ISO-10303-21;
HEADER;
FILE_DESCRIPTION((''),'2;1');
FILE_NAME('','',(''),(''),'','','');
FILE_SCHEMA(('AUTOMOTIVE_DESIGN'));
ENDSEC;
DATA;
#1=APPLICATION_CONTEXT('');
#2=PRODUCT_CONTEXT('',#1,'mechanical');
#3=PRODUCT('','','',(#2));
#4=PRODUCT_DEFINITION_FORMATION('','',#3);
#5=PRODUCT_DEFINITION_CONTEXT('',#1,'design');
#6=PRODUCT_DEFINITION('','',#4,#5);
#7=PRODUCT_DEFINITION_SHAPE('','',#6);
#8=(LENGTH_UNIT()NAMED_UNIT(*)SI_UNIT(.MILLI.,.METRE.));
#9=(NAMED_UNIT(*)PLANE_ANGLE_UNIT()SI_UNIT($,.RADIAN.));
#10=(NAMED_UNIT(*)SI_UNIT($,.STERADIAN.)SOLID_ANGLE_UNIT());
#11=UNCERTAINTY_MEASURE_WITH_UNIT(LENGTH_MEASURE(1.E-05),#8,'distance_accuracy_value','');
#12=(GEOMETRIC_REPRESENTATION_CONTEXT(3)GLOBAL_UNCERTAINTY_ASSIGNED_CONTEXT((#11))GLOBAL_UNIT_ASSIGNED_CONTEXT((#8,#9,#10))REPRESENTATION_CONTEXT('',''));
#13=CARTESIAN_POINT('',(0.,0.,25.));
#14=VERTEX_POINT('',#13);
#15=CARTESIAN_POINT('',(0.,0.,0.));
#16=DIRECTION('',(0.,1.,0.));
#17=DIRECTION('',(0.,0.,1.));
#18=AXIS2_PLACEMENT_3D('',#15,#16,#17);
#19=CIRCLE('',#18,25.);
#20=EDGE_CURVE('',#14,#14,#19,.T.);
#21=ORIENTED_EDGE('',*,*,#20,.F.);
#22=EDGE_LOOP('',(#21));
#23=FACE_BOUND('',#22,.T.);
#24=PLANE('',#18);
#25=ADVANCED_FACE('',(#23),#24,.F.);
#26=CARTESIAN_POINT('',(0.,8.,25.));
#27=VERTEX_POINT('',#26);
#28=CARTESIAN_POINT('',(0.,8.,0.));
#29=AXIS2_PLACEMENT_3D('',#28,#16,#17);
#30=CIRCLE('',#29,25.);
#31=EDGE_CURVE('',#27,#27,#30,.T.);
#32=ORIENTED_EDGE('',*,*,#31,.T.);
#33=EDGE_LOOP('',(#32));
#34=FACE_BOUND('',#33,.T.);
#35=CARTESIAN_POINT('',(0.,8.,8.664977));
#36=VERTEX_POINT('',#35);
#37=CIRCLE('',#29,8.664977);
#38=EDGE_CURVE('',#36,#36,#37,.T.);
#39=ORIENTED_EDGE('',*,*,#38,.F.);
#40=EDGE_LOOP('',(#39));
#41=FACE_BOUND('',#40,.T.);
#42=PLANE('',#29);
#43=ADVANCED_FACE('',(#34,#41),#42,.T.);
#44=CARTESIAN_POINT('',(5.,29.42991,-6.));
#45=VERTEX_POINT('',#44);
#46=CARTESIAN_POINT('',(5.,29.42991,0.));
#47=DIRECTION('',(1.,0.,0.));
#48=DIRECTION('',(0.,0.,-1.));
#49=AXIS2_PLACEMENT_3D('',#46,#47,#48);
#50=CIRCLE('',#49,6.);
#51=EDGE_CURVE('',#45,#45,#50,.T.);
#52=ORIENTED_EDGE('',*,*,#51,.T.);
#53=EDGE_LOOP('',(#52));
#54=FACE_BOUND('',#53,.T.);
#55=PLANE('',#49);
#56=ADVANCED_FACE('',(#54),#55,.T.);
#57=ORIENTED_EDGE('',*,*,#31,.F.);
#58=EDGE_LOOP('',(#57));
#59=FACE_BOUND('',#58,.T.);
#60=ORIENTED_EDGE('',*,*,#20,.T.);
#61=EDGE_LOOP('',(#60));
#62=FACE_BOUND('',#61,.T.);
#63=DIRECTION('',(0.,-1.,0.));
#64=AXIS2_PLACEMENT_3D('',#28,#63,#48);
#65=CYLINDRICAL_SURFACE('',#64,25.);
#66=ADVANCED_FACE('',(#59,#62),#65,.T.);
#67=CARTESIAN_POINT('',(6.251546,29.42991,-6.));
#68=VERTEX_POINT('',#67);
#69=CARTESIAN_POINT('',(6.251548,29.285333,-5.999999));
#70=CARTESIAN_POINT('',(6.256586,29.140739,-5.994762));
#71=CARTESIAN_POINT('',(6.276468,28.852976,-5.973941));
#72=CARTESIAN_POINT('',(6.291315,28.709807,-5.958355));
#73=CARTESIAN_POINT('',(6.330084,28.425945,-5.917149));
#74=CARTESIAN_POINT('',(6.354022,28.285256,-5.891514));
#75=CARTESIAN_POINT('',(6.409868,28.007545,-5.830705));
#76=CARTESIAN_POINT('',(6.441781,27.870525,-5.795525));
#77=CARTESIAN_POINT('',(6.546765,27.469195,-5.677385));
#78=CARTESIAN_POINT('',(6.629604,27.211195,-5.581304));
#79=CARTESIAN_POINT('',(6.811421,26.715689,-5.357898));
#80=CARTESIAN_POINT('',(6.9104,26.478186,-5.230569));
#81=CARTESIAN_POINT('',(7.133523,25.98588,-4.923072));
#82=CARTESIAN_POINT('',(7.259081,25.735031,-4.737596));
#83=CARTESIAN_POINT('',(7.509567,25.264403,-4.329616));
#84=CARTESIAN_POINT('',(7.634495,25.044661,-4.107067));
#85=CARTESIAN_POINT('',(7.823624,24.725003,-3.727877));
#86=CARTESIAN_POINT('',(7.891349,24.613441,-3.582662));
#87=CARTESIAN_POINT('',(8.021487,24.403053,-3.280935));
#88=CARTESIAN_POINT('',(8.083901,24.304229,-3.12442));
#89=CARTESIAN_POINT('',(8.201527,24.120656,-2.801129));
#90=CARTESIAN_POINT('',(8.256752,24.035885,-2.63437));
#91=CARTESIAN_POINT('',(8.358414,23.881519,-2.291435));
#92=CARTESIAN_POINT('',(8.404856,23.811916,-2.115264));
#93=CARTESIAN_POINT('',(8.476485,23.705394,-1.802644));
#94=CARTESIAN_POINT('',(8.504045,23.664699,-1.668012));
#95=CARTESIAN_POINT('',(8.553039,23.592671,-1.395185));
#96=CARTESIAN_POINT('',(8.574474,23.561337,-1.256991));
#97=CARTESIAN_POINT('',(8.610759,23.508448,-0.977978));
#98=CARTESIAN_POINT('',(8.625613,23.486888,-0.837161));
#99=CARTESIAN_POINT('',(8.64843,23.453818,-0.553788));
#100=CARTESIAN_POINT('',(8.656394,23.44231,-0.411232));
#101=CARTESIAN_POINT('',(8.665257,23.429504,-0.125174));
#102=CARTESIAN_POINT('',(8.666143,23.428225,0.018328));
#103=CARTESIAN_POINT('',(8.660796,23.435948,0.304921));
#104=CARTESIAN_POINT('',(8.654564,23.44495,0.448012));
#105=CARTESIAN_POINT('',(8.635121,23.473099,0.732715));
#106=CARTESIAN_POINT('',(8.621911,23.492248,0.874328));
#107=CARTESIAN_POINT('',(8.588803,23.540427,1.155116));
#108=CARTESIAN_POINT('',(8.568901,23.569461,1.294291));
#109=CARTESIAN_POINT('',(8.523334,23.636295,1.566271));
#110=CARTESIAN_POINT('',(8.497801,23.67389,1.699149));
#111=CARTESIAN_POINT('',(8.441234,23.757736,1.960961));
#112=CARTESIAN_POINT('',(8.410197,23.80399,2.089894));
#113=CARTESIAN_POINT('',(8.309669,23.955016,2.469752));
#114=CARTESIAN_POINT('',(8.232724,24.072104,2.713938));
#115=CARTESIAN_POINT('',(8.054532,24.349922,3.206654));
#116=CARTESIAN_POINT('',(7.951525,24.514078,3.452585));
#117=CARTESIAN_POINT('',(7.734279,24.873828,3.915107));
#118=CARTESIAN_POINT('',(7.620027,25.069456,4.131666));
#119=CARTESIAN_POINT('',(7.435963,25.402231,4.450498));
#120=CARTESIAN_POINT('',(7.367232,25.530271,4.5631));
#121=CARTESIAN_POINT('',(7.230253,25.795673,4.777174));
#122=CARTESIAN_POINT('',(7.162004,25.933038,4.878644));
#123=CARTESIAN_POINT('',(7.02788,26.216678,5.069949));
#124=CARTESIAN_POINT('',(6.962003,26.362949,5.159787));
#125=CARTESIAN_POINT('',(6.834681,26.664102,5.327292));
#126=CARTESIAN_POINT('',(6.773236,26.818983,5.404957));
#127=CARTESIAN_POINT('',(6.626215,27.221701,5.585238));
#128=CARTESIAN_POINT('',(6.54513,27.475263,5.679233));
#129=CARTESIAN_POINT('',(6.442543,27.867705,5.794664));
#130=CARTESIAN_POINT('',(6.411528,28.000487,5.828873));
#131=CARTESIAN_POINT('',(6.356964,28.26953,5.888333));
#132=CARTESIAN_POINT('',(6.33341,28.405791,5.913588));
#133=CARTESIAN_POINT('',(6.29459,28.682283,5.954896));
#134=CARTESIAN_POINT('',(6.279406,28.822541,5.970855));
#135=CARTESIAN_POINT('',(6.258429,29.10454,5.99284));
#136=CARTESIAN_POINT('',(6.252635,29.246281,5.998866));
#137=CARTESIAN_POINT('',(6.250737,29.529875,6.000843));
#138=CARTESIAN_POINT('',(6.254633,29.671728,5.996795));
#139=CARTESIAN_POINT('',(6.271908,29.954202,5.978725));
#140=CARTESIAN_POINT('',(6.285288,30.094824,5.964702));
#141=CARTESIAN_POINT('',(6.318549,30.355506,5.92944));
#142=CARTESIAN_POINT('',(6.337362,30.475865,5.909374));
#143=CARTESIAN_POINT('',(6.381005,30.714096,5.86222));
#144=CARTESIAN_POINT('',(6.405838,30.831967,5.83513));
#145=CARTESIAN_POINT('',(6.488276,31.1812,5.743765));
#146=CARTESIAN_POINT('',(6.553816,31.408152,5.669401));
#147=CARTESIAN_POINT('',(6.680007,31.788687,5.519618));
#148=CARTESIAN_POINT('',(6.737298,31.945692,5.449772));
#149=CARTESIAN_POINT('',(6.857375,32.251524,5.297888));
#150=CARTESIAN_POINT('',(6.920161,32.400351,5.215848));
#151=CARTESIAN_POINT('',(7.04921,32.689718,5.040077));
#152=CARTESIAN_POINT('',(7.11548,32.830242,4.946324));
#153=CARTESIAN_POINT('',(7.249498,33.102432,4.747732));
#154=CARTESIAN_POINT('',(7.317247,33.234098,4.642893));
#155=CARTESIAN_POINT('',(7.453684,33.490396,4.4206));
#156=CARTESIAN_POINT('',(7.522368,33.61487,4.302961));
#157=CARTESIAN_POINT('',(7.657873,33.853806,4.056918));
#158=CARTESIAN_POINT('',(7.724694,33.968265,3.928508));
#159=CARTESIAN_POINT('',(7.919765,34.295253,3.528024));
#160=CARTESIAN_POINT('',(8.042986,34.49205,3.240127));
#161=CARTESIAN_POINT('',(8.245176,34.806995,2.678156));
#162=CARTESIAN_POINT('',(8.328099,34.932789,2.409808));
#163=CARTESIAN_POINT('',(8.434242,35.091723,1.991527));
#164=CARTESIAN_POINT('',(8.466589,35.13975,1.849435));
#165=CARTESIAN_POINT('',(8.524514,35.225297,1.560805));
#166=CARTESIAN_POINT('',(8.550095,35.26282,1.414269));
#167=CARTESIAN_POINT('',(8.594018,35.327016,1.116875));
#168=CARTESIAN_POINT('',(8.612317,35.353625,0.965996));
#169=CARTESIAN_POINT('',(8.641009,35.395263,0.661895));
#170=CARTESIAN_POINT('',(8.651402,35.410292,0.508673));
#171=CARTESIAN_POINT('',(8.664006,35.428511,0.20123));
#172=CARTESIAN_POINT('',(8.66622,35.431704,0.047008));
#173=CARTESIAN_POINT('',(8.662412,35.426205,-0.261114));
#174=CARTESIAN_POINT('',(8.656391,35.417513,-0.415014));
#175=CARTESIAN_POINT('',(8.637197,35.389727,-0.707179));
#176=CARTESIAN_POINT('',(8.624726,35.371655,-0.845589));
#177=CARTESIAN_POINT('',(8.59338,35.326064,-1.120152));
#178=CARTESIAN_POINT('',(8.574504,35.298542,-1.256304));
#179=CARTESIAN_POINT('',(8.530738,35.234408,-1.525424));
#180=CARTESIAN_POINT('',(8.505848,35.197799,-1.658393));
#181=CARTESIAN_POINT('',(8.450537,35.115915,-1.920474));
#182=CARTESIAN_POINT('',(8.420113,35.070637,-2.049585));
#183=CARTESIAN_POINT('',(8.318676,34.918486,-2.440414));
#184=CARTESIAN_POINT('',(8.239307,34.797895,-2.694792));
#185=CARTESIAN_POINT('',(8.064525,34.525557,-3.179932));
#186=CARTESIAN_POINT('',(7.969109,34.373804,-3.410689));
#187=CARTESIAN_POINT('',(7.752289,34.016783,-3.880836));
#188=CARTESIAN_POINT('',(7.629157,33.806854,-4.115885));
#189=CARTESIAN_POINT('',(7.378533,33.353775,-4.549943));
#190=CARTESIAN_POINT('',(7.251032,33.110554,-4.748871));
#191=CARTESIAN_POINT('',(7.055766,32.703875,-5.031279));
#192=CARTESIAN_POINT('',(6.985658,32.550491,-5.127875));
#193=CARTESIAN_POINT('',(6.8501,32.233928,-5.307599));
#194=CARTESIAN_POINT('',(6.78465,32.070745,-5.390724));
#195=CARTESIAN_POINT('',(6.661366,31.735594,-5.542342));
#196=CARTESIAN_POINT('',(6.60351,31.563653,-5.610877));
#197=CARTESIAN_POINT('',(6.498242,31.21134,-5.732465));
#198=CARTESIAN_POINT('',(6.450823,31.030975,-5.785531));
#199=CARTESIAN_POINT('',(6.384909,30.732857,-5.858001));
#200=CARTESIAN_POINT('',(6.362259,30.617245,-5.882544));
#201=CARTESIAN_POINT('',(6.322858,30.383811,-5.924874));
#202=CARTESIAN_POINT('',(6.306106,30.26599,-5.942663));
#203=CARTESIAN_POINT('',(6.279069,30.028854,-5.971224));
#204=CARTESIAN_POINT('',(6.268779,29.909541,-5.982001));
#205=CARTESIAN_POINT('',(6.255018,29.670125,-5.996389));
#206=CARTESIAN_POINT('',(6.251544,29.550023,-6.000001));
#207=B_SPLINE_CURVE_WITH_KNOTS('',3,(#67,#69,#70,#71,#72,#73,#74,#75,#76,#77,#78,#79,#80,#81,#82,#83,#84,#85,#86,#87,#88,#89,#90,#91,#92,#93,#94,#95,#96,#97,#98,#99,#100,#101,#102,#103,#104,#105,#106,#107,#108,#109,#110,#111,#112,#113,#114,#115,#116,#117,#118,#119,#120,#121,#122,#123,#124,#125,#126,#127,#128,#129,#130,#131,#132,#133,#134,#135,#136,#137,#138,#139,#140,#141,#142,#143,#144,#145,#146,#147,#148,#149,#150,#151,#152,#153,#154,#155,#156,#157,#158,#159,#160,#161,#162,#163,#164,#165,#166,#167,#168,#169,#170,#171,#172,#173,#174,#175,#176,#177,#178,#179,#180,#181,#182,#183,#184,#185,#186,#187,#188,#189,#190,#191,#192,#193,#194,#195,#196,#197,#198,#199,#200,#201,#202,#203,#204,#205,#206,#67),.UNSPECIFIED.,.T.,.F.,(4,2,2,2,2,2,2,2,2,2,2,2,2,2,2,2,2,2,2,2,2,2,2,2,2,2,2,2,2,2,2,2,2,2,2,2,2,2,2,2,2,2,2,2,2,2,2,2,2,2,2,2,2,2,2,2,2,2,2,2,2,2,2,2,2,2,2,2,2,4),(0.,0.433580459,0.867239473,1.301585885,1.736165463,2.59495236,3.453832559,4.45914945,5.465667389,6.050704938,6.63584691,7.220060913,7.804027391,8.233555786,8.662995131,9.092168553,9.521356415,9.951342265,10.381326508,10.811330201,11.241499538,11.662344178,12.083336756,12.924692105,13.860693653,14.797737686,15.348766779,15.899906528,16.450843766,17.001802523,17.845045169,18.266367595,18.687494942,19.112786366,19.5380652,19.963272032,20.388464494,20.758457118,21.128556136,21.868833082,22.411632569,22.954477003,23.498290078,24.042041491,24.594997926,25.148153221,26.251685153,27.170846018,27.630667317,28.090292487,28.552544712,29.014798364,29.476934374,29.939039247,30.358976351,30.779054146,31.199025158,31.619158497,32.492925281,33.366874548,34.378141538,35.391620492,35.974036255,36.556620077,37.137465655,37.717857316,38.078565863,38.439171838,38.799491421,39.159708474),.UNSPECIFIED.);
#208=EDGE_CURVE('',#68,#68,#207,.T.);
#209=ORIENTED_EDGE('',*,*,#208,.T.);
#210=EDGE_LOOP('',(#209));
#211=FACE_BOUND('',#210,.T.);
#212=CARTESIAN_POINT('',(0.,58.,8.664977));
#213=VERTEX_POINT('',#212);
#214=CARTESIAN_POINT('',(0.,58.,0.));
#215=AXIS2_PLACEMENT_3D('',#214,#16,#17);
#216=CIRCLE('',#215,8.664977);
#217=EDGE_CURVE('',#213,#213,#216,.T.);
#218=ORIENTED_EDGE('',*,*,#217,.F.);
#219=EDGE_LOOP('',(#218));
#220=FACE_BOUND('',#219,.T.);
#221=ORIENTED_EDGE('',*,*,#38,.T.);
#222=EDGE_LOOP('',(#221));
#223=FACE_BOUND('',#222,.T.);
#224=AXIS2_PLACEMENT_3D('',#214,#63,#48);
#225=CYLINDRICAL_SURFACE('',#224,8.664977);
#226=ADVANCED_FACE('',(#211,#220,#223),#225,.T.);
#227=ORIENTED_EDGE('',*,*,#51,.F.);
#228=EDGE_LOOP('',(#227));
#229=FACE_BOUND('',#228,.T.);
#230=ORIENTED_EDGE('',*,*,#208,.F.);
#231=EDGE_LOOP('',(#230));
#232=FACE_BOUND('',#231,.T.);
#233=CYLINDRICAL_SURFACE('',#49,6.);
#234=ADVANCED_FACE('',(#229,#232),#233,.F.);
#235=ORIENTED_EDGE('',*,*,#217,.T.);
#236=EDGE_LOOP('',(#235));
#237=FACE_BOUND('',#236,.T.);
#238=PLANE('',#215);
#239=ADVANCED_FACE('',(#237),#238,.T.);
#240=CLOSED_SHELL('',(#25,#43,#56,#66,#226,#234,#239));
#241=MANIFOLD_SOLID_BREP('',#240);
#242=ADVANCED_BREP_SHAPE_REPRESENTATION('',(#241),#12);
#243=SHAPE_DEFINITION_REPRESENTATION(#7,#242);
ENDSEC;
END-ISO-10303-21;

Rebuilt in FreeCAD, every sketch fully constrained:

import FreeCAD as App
import Part
import Sketcher

V = App.Vector

doc = App.newDocument("Part")
body = doc.addObject("PartDesign::Body", "Body")

sketch1 = body.newObject("Sketcher::SketchObject", "Sketch")
sketch1.AttachmentSupport = (doc.getObject("XZ_Plane"), [""])
sketch1.MapMode = "FlatFace"
sketch1.addGeometry(Part.Circle(V(0, 0, 0), V(0, 0, 1), 25), False)
sketch1.addConstraint([
    Sketcher.Constraint("Coincident", 0, 3, -1, 1),
    Sketcher.Constraint("Diameter", 0, 50.0),
])
pad1 = body.newObject("PartDesign::Pad", "Pad")
pad1.Profile = sketch1
pad1.Length = 8
pad1.Reversed = True

sketch2 = body.newObject("Sketcher::SketchObject", "Sketch001")
sketch2.AttachmentSupport = (doc.getObject("XZ_Plane"), [""])
sketch2.MapMode = "FlatFace"
sketch2.AttachmentOffset = App.Placement(V(0, 0, -8), App.Rotation())
sketch2.addGeometry(Part.Circle(V(0, 0, 0), V(0, 0, 1), 9), False)
sketch2.addConstraint([
    Sketcher.Constraint("Coincident", 0, 3, -1, 1),
    Sketcher.Constraint("Diameter", 0, 17.329954),
])
pad2 = body.newObject("PartDesign::Pad", "Pad001")
pad2.Profile = sketch2
pad2.Length = 50
pad2.Reversed = True

sketch3 = body.newObject("Sketcher::SketchObject", "Sketch002")
sketch3.AttachmentSupport = (doc.getObject("YZ_Plane"), [""])
sketch3.MapMode = "FlatFace"
sketch3.AttachmentOffset = App.Placement(V(0, 0, 20), App.Rotation())
sketch3.addGeometry(Part.Circle(V(29, 0, 0), V(0, 0, 1), 6), False)
sketch3.addConstraint([
    Sketcher.Constraint("PointOnObject", 0, 3, -1),
    Sketcher.Constraint("Diameter", 0, 12.0),
    Sketcher.Constraint("DistanceX", -1, 1, 0, 3, 29.42991),
])
pocket1 = body.newObject("PartDesign::Pocket", "Pocket")
pocket1.Profile = sketch3
pocket1.Length = 15

doc.recompute()
